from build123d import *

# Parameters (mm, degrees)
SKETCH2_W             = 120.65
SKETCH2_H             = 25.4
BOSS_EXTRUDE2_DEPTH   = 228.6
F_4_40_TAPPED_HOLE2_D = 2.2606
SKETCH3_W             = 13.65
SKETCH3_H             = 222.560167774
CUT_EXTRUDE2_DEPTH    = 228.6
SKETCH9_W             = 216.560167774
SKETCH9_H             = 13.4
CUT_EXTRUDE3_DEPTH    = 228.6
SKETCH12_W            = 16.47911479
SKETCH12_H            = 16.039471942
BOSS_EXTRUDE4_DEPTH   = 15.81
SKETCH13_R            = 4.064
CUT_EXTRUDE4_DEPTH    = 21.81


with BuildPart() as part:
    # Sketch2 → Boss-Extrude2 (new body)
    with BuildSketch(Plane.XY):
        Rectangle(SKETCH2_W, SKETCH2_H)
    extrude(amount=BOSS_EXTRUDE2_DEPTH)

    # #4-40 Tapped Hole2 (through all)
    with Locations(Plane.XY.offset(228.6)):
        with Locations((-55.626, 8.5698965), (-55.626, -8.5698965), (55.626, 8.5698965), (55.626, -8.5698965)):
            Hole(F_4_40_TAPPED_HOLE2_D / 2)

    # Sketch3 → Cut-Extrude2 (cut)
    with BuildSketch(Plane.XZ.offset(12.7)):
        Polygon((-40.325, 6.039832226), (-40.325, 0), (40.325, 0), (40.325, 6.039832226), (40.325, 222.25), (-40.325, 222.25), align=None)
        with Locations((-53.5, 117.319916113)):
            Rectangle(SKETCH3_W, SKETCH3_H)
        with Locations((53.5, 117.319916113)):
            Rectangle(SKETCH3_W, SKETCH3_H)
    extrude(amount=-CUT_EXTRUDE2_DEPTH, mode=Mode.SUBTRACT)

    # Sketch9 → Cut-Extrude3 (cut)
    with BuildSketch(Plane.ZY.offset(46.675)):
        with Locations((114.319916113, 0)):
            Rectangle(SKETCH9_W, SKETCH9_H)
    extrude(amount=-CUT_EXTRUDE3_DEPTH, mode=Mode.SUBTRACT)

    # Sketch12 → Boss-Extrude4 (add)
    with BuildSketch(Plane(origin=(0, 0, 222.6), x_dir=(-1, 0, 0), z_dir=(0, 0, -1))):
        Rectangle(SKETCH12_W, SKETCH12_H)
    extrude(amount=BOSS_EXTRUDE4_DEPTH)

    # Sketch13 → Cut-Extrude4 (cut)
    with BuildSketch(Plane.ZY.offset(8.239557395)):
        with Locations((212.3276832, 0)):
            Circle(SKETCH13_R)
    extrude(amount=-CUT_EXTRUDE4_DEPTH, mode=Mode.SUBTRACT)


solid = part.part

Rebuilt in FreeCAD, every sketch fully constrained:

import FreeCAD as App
import Part
import Sketcher
Q = App.Units.Quantity


def add_polygon(sketch, points):
    """Adds a closed chain of lines whose ends are joined by coincident constraints."""
    first, n = sketch.GeometryCount, len(points)
    for a, b in zip(points, points[1:] + points[:1]):
        sketch.addGeometry(Part.LineSegment(App.Vector(*a, 0), App.Vector(*b, 0)), False)
    for i in range(n):
        sketch.addConstraint(Sketcher.Constraint("Coincident", first + i, 2, first + (i + 1) % n, 1))

doc = App.newDocument("Part")
body = doc.addObject("PartDesign::Body", "Body")

sketch1 = body.newObject("Sketcher::SketchObject", "Sketch")
sketch1.AttachmentSupport = (doc.getObject("XY_Plane"), [""])
sketch1.MapMode = "FlatFace"
add_polygon(sketch1, [(-60, 13), (-60, -13), (60, -13), (60, 13)])
sketch1.addConstraint(Sketcher.Constraint("Vertical", 0))
sketch1.addConstraint(Sketcher.Constraint("Horizontal", 1))
sketch1.addConstraint(Sketcher.Constraint("Vertical", 2))
sketch1.addConstraint(Sketcher.Constraint("Horizontal", 3))
sketch1.addConstraint(Sketcher.Constraint("Symmetric", 0, 2, 2, 2, -1, 1))
sketch1.addConstraint(Sketcher.Constraint("DistanceY", 0, 2, 0, 1, Q("1 in")))
sketch1.addConstraint(Sketcher.Constraint("DistanceX", 1, 1, 1, 2, Q("4.75 in")))
pad1 = body.newObject("PartDesign::Pad", "Pad")
pad1.Profile = sketch1
pad1.Length = Q("9 in")

sketch2 = body.newObject("Sketcher::SketchObject", "Sketch001")
sketch2.AttachmentSupport = (doc.getObject("XY_Plane"), [""])
sketch2.MapMode = "FlatFace"
sketch2.AttachmentOffset = App.Placement(App.Vector(0, 0, 9 * 25.4), App.Rotation())
sketch2.addGeometry(Part.Circle(App.Vector(-55.6, 8.6, 0), App.Vector(0, 0, 1), 1.1), False)
sketch2.addGeometry(Part.Circle(App.Vector(-55.6, -8.6, 0), App.Vector(0, 0, 1), 1.1), False)
sketch2.addGeometry(Part.Circle(App.Vector(55.6, 8.6, 0), App.Vector(0, 0, 1), 1.1), False)
sketch2.addGeometry(Part.Circle(App.Vector(55.6, -8.6, 0), App.Vector(0, 0, 1), 1.1), False)
sketch2.addConstraint(Sketcher.Constraint("Equal", 0, 1))
sketch2.addConstraint(Sketcher.Constraint("Equal", 1, 2))
sketch2.addConstraint(Sketcher.Constraint("Equal", 2, 3))
sketch2.addConstraint(Sketcher.Constraint("Symmetric", 1, 3, 2, 3, -1, 1))
sketch2.addConstraint(Sketcher.Constraint("Symmetric", 0, 3, 3, 3, -1, 1))
sketch2.addConstraint(Sketcher.Constraint("Symmetric", 0, 3, 2, 3, -2))
sketch2.addConstraint(Sketcher.Constraint("Diameter", 0, Q("0.089 in")))
sketch2.addConstraint(Sketcher.Constraint("DistanceX", 0, 3, -1, 1, Q("2.19 in")))
sketch2.addConstraint(Sketcher.Constraint("DistanceY", -1, 1, 0, 3, Q("8.569897 mm")))
doc.recompute()
hole = body.newObject("PartDesign::Hole", "Hole")
hole.Profile = sketch2
hole.ThreadType = "None"
hole.Diameter = Q("0.089 in")
hole.DepthType = "ThroughAll"

sketch3 = body.newObject("Sketcher::SketchObject", "Sketch002")
sketch3.AttachmentSupport = (doc.getObject("XZ_Plane"), [""])
sketch3.MapMode = "FlatFace"
sketch3.AttachmentOffset = App.Placement(App.Vector(0, 0, 0.5 * 25.4), App.Rotation())
add_polygon(sketch3, [(-40, 0), (40, 0), (40, 222), (-40, 222)])
add_polygon(sketch3, [(-60, 229), (-60, 6), (-47, 6), (-47, 229)])
add_polygon(sketch3, [(47, 229), (47, 6), (60, 6), (60, 229)])
sketch3.addConstraint(Sketcher.Constraint("Horizontal", 0))
sketch3.addConstraint(Sketcher.Constraint("Vertical", 1))
sketch3.addConstraint(Sketcher.Constraint("Horizontal", 2))
sketch3.addConstraint(Sketcher.Constraint("Vertical", 3))
sketch3.addConstraint(Sketcher.Constraint("Vertical", 4))
sketch3.addConstraint(Sketcher.Constraint("Horizontal", 5))
sketch3.addConstraint(Sketcher.Constraint("Vertical", 6))
sketch3.addConstraint(Sketcher.Constraint("Horizontal", 7))
sketch3.addConstraint(Sketcher.Constraint("Vertical", 8))
sketch3.addConstraint(Sketcher.Constraint("Horizontal", 9))
sketch3.addConstraint(Sketcher.Constraint("Vertical", 10))
sketch3.addConstraint(Sketcher.Constraint("Horizontal", 11))
sketch3.addConstraint(Sketcher.Constraint("Symmetric", 0, 2, 3, 2, -1, 1))
sketch3.addConstraint(Sketcher.Constraint("Symmetric", 5, 2, 8, 2, -2))
sketch3.addConstraint(Sketcher.Constraint("Symmetric", 7, 2, 10, 2, -2))
sketch3.addConstraint(Sketcher.Constraint("DistanceY", -1, 1, 6, 2, Q("9 in")))
sketch3.addConstraint(Sketcher.Constraint("DistanceY", 1, 1, 1, 2, Q("8.75 in")))
sketch3.addConstraint(Sketcher.Constraint("DistanceX", 5, 2, 3, 2, Q("0.25 in")))
sketch3.addConstraint(Sketcher.Constraint("DistanceX", 4, 2, 9, 2, Q("4.75 in")))
sketch3.addConstraint(Sketcher.Constraint("DistanceX", 0, 1, 0, 2, Q("80.65 mm")))
sketch3.addConstraint(Sketcher.Constraint("DistanceY", 4, 2, 4, 1, Q("222.560168 mm")))
pocket1 = body.newObject("PartDesign::Pocket", "Pocket")
pocket1.Profile = sketch3
pocket1.Length = Q("9 in")

sketch4 = body.newObject("Sketcher::SketchObject", "Sketch003")
sketch4.AttachmentSupport = (doc.getObject("YZ_Plane"), [""])
sketch4.MapMode = "FlatFace"
sketch4.AttachmentOffset = App.Placement(App.Vector(0, 0, -46.675), App.Rotation())
add_polygon(sketch4, [(7, 6), (-7, 6), (-7, 223), (7, 223)])
sketch4.addConstraint(Sketcher.Constraint("Horizontal", 0))
sketch4.addConstraint(Sketcher.Constraint("Vertical", 1))
sketch4.addConstraint(Sketcher.Constraint("Horizontal", 2))
sketch4.addConstraint(Sketcher.Constraint("Vertical", 3))
sketch4.addConstraint(Sketcher.Constraint("DistanceX", 0, 2, 0, 1, Q("13.4 mm")))
sketch4.addConstraint(Sketcher.Constraint("DistanceX", 0, 2, -1, 1, Q("6.7 mm")))
sketch4.addConstraint(Sketcher.Constraint("DistanceY", -1, 1, 1, 2, Q("222.6 mm")))
sketch4.addConstraint(Sketcher.Constraint("DistanceY", 1, 1, 1, 2, Q("216.560168 mm")))
pocket2 = body.newObject("PartDesign::Pocket", "Pocket001")
pocket2.Profile = sketch4
pocket2.Length = Q("9 in")
pocket2.Reversed = True

sketch5 = body.newObject("Sketcher::SketchObject", "Sketch004")
sketch5.AttachmentSupport = (doc.getObject("XY_Plane"), [""])
sketch5.MapMode = "FlatFace"
sketch5.AttachmentOffset = App.Placement(App.Vector(0, 0, 222.6), App.Rotation())
add_polygon(sketch5, [(8, 8), (8, -8), (-8, -8), (-8, 8)])
sketch5.addConstraint(Sketcher.Constraint("Vertical", 0))
sketch5.addConstraint(Sketcher.Constraint("Horizontal", 1))
sketch5.addConstraint(Sketcher.Constraint("Vertical", 2))
sketch5.addConstraint(Sketcher.Constraint("Horizontal", 3))
sketch5.addConstraint(Sketcher.Constraint("Symmetric", 0, 2, 2, 2, -1, 1))
sketch5.addConstraint(Sketcher.Constraint("DistanceY", 0, 2, 0, 1, Q("16.039472 mm")))
sketch5.addConstraint(Sketcher.Constraint("DistanceX", 1, 2, 1, 1, Q("16.479115 mm")))
pad2 = body.newObject("PartDesign::Pad", "Pad001")
pad2.Profile = sketch5
pad2.Length = 15.81
pad2.Reversed = True

sketch6 = body.newObject("Sketcher::SketchObject", "Sketch005")
sketch6.AttachmentSupport = (doc.getObject("YZ_Plane"), [""])
sketch6.MapMode = "FlatFace"
sketch6.AttachmentOffset = App.Placement(App.Vector(0, 0, -8.239557), App.Rotation())
sketch6.addGeometry(Part.Circle(App.Vector(0, 212.3, 0), App.Vector(0, 0, 1), 4.1), False)
sketch6.addConstraint(Sketcher.Constraint("PointOnObject", 0, 3, -2))
sketch6.addConstraint(Sketcher.Constraint("Diameter", 0, Q("0.32 in")))
sketch6.addConstraint(Sketcher.Constraint("DistanceY", -1, 1, 0, 3, Q("212.327683 mm")))
pocket3 = body.newObject("PartDesign::Pocket", "Pocket002")
pocket3.Profile = sketch6
pocket3.Length = 21.81
pocket3.Reversed = True

doc.recompute()
